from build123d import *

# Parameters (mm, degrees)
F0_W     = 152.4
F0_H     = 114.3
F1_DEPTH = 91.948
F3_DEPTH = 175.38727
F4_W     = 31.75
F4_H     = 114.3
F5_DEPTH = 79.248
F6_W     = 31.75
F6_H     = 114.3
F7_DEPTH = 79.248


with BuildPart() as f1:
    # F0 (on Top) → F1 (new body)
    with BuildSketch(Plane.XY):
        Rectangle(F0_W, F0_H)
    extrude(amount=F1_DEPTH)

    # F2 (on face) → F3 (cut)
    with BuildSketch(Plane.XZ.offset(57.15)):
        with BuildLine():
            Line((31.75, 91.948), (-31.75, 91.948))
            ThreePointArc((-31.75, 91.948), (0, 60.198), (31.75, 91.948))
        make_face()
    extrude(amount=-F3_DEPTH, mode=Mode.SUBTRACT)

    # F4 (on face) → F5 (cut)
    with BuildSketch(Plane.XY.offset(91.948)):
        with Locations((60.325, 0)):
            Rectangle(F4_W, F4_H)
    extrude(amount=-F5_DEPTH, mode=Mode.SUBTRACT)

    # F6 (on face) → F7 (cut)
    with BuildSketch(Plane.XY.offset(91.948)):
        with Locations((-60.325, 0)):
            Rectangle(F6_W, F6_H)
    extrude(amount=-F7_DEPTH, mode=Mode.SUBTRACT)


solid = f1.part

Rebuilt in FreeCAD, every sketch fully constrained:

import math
import FreeCAD as App
import Part
import Sketcher
from FreeCAD import Vector
Q = App.Units.Quantity

doc = App.newDocument("Part")
body = doc.addObject("PartDesign::Body", "Body")

sketch1 = body.newObject("Sketcher::SketchObject", "Sketch")
sketch1.AttachmentSupport = (doc.getObject("XY_Plane"), [""])
sketch1.MapMode = "FlatFace"
sketch1.addGeometry([
    Part.LineSegment(Vector(-76, 57, 0), Vector(-76, -57, 0)),
    Part.LineSegment(Vector(-76, -57, 0), Vector(76, -57, 0)),
    Part.LineSegment(Vector(76, -57, 0), Vector(76, 57, 0)),
    Part.LineSegment(Vector(76, 57, 0), Vector(-76, 57, 0)),
], False)
sketch1.addConstraint([
    Sketcher.Constraint("Coincident", 0, 2, 1, 1),
    Sketcher.Constraint("Coincident", 1, 2, 2, 1),
    Sketcher.Constraint("Coincident", 2, 2, 3, 1),
    Sketcher.Constraint("Coincident", 3, 2, 0, 1),
    Sketcher.Constraint("Vertical", 0),
    Sketcher.Constraint("Horizontal", 1),
    Sketcher.Constraint("Vertical", 2),
    Sketcher.Constraint("Horizontal", 3),
    Sketcher.Constraint("Symmetric", 0, 2, 2, 2, -1, 1),
    Sketcher.Constraint("DistanceX", 1, 1, 1, 2, Q("6 in")),
    Sketcher.Constraint("DistanceY", 0, 2, 0, 1, Q("4.5 in")),
])
pad1 = body.newObject("PartDesign::Pad", "Pad")
pad1.Profile = sketch1
pad1.Length = Q("3.62 in")

sketch2 = body.newObject("Sketcher::SketchObject", "Sketch001")
sketch2.AttachmentSupport = (doc.getObject("XZ_Plane"), [""])
sketch2.MapMode = "FlatFace"
sketch2.AttachmentOffset = App.Placement(Vector(0, 0, 2.25 * 25.4), App.Rotation())
sketch2.addGeometry([
    Part.LineSegment(Vector(32, 92, 0), Vector(-32, 92, 0)),
    Part.ArcOfCircle(Part.Circle(Vector(0, 92, 0), Vector(0, 0, 1), 32), math.radians(180), math.radians(360)),
], False)
sketch2.addConstraint([
    Sketcher.Constraint("Coincident", 0, 1, 1, 2),
    Sketcher.Constraint("Coincident", 1, 1, 0, 2),
    Sketcher.Constraint("Horizontal", 0),
    Sketcher.Constraint("PointOnObject", 1, 3, -2),
    Sketcher.Constraint("Horizontal", 1, 3, 0, 1),
    Sketcher.Constraint("Radius", 1, Q("1.25 in")),
    Sketcher.Constraint("DistanceY", -1, 1, 1, 3, Q("3.62 in")),
])
pocket1 = body.newObject("PartDesign::Pocket", "Pocket")
pocket1.Profile = sketch2
pocket1.Length = 175.38727

sketch3 = body.newObject("Sketcher::SketchObject", "Sketch002")
sketch3.AttachmentSupport = (doc.getObject("XY_Plane"), [""])
sketch3.MapMode = "FlatFace"
sketch3.AttachmentOffset = App.Placement(Vector(0, 0, 3.62 * 25.4), App.Rotation())
sketch3.addGeometry([
    Part.LineSegment(Vector(44, 57, 0), Vector(44, -57, 0)),
    Part.LineSegment(Vector(44, -57, 0), Vector(76, -57, 0)),
    Part.LineSegment(Vector(76, -57, 0), Vector(76, 57, 0)),
    Part.LineSegment(Vector(76, 57, 0), Vector(44, 57, 0)),
], False)
sketch3.addConstraint([
    Sketcher.Constraint("Coincident", 0, 2, 1, 1),
    Sketcher.Constraint("Coincident", 1, 2, 2, 1),
    Sketcher.Constraint("Coincident", 2, 2, 3, 1),
    Sketcher.Constraint("Coincident", 3, 2, 0, 1),
    Sketcher.Constraint("Vertical", 0),
    Sketcher.Constraint("Horizontal", 1),
    Sketcher.Constraint("Vertical", 2),
    Sketcher.Constraint("Horizontal", 3),
    Sketcher.Constraint("DistanceY", 0, 2, 0, 1, Q("4.5 in")),
    Sketcher.Constraint("DistanceX", -1, 1, 1, 2, Q("3 in")),
    Sketcher.Constraint("DistanceX", 1, 1, 1, 2, Q("1.25 in")),
    Sketcher.Constraint("DistanceY", 0, 2, -1, 1, Q("2.25 in")),
])
pocket2 = body.newObject("PartDesign::Pocket", "Pocket001")
pocket2.Profile = sketch3
pocket2.Length = Q("3.12 in")

sketch4 = body.newObject("Sketcher::SketchObject", "Sketch003")
sketch4.AttachmentSupport = (doc.getObject("XY_Plane"), [""])
sketch4.MapMode = "FlatFace"
sketch4.AttachmentOffset = App.Placement(Vector(0, 0, 3.62 * 25.4), App.Rotation())
sketch4.addGeometry([
    Part.LineSegment(Vector(-76, 57, 0), Vector(-76, -57, 0)),
    Part.LineSegment(Vector(-76, -57, 0), Vector(-44, -57, 0)),
    Part.LineSegment(Vector(-44, -57, 0), Vector(-44, 57, 0)),
    Part.LineSegment(Vector(-44, 57, 0), Vector(-76, 57, 0)),
], False)
sketch4.addConstraint([
    Sketcher.Constraint("Coincident", 0, 2, 1, 1),
    Sketcher.Constraint("Coincident", 1, 2, 2, 1),
    Sketcher.Constraint("Coincident", 2, 2, 3, 1),
    Sketcher.Constraint("Coincident", 3, 2, 0, 1),
    Sketcher.Constraint("Vertical", 0),
    Sketcher.Constraint("Horizontal", 1),
    Sketcher.Constraint("Vertical", 2),
    Sketcher.Constraint("Horizontal", 3),
    Sketcher.Constraint("DistanceY", 0, 2, 0, 1, Q("4.5 in")),
    Sketcher.Constraint("DistanceX", 0, 2, -1, 1, Q("3 in")),
    Sketcher.Constraint("DistanceX", 1, 1, 1, 2, Q("1.25 in")),
    Sketcher.Constraint("DistanceY", 0, 2, -1, 1, Q("2.25 in")),
])
pocket3 = body.newObject("PartDesign::Pocket", "Pocket002")
pocket3.Profile = sketch4
pocket3.Length = Q("3.12 in")

doc.recompute()
